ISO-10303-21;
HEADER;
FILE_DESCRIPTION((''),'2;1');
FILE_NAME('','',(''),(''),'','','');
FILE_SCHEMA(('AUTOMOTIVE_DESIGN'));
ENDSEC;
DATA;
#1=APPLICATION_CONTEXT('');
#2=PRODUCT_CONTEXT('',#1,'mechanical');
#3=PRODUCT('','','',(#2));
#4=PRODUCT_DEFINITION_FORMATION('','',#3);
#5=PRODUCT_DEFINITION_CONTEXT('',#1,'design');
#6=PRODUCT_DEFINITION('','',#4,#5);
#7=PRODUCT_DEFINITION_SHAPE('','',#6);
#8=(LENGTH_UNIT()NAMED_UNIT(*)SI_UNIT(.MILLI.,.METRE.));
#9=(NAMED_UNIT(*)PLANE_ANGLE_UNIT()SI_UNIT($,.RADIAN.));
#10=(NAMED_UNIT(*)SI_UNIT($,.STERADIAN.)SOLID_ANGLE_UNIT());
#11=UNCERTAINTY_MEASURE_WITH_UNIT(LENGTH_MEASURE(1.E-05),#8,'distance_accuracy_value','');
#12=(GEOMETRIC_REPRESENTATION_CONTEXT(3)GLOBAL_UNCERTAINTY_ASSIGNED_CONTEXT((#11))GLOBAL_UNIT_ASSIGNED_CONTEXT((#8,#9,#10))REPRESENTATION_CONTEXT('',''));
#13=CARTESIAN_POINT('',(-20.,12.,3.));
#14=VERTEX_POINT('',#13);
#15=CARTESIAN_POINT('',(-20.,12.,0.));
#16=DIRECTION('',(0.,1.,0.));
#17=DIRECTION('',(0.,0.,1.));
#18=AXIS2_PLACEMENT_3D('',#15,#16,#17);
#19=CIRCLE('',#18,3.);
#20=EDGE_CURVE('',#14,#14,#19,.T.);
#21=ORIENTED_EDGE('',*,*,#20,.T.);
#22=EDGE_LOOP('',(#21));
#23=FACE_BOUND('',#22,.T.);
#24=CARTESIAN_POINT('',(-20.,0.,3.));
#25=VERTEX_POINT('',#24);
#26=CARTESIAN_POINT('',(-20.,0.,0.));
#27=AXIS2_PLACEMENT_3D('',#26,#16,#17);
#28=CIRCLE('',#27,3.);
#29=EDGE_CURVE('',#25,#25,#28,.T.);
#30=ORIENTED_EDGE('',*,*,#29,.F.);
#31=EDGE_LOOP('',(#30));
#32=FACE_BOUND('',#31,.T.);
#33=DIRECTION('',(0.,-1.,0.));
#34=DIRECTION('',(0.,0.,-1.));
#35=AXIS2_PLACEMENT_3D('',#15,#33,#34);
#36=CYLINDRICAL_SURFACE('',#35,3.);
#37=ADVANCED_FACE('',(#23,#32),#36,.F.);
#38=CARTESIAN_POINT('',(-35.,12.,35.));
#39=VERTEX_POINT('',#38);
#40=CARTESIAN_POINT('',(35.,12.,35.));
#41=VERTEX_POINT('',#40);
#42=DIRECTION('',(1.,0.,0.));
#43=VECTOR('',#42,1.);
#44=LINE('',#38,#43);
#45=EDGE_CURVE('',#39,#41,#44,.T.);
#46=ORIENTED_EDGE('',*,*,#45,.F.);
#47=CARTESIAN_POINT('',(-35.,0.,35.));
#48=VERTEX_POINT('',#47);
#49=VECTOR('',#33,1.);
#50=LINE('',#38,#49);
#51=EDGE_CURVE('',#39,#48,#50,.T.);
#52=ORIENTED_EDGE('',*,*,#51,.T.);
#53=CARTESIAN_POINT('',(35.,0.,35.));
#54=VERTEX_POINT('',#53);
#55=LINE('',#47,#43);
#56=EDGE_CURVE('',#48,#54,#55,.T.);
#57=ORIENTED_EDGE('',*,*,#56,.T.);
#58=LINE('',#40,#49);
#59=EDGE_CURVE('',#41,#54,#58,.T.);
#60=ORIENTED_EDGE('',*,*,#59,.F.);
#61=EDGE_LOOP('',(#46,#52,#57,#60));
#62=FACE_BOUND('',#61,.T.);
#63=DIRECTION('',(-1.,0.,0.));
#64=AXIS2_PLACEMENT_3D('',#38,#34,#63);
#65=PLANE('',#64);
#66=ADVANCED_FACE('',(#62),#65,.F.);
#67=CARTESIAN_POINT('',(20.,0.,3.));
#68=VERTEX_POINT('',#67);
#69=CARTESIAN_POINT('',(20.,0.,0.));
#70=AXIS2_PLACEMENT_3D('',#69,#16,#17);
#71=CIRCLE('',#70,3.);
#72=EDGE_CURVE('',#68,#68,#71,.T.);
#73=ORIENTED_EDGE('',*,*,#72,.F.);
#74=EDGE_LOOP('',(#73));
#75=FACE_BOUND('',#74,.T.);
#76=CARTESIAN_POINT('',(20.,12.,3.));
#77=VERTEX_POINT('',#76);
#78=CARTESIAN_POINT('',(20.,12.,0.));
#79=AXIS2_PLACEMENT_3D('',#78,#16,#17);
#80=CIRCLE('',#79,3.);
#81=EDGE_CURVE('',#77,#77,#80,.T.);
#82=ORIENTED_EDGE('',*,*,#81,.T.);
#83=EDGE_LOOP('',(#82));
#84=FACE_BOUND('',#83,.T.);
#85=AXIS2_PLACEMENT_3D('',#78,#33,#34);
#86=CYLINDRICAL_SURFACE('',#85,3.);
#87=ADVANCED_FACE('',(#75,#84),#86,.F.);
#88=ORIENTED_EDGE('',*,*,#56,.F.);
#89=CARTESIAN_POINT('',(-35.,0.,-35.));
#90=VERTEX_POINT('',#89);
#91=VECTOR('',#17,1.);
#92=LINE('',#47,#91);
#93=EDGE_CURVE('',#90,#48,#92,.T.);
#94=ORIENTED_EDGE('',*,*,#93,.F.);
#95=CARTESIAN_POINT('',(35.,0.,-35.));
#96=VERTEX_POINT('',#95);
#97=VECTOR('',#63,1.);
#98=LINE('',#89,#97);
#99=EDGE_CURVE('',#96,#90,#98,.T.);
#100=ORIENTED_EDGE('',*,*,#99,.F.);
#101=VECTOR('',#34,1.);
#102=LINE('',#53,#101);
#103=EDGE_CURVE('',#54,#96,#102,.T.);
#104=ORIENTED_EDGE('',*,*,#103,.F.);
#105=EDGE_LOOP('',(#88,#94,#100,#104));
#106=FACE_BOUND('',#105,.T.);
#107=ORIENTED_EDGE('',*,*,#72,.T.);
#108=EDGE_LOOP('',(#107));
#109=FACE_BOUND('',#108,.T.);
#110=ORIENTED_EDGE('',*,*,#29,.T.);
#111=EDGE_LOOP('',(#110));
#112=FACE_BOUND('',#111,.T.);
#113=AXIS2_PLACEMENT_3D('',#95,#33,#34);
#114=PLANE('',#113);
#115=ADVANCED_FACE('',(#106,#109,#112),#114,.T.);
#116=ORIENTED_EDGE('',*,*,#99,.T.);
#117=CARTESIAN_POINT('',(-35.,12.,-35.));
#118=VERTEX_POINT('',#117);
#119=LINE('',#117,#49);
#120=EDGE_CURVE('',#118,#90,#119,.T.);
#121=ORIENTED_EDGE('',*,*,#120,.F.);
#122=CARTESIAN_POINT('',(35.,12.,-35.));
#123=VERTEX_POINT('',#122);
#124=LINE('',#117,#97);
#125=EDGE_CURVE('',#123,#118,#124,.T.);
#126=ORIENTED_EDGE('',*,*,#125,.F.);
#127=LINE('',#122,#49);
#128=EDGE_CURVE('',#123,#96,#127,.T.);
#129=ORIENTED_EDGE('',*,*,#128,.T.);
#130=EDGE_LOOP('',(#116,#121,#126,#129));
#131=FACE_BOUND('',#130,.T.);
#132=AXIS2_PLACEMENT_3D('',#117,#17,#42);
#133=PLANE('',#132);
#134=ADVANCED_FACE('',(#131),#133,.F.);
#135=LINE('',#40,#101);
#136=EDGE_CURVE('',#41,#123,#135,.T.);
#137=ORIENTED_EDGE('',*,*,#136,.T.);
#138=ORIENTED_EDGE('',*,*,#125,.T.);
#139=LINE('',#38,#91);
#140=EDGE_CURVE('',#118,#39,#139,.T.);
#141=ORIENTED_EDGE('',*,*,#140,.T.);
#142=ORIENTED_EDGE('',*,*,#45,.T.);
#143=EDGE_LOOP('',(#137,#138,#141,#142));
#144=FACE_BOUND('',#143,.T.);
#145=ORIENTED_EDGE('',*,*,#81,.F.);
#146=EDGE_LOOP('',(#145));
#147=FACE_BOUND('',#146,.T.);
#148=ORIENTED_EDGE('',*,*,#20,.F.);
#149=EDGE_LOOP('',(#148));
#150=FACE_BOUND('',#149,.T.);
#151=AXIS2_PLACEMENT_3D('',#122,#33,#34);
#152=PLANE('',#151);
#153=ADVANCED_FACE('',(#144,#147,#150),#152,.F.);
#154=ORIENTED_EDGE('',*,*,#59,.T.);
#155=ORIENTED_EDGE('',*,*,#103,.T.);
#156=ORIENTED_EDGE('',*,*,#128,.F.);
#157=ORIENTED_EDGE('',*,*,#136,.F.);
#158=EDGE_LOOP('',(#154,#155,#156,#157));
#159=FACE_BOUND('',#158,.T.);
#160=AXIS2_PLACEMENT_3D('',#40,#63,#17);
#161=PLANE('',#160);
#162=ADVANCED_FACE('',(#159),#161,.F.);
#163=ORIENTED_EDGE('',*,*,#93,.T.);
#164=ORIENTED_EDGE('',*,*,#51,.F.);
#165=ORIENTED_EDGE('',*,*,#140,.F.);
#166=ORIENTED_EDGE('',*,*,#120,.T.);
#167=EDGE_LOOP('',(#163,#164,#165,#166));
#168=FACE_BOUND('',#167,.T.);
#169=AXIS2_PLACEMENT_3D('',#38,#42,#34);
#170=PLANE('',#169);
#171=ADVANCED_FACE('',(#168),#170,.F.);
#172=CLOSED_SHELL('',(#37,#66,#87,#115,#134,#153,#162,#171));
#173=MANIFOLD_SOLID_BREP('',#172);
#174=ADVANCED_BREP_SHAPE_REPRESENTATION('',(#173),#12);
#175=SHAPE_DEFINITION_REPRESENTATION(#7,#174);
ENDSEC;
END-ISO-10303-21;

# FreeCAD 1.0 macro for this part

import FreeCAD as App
import Part
import Sketcher


def add_polygon(sketch, points):
    """Adds a closed chain of lines whose ends are joined by coincident constraints."""
    first, n = sketch.GeometryCount, len(points)
    for a, b in zip(points, points[1:] + points[:1]):
        sketch.addGeometry(Part.LineSegment(App.Vector(*a, 0), App.Vector(*b, 0)), False)
    for i in range(n):
        sketch.addConstraint(Sketcher.Constraint("Coincident", first + i, 2, first + (i + 1) % n, 1))

doc = App.newDocument("Part")
params = doc.addObject("Spreadsheet::Sheet", "Params")
for row, (alias, value) in enumerate([
    ("sketch1_diameter", "6 mm"),
    ("sketch1_width", "70 mm"),
    ("pad1_length", "12 mm"),
], start=1):
    params.set(f"A{row}", alias)
    params.set(f"B{row}", "=" + value)
    params.setAlias(f"B{row}", alias)

body = doc.addObject("PartDesign::Body", "Body")

# Sketch on XZ plane
sketch1 = body.newObject("Sketcher::SketchObject", "Sketch")
sketch1.AttachmentSupport = (doc.getObject("XZ_Plane"), [""])
sketch1.MapMode = "FlatFace"
add_polygon(sketch1, [(-35, -35), (-35, 35), (35, 35), (35, -35)])  # lines 0-3
sketch1.addGeometry(Part.Circle(App.Vector(-20, 0, 0), App.Vector(0, 0, 1), 3), False)  # 4
sketch1.addGeometry(Part.Circle(App.Vector(20, 0, 0), App.Vector(0, 0, 1), 3), False)  # 5
sketch1.addConstraint([
    Sketcher.Constraint("Vertical", 0),
    Sketcher.Constraint("Horizontal", 1),
    Sketcher.Constraint("Vertical", 2),
    Sketcher.Constraint("Horizontal", 3),
    Sketcher.Constraint("Equal", 4, 5),
    Sketcher.Constraint("Symmetric", 4, 3, 5, 3, -1, 1),
    Sketcher.Constraint("Symmetric", 0, 2, 2, 2, -1, 1),
    Sketcher.Constraint("PointOnObject", 4, 3, -1),
    Sketcher.Constraint("Equal", 3, 0),
    Sketcher.Constraint("Diameter", 4, 6.0),
    Sketcher.Constraint("DistanceX", 1, 1, 1, 2, 70.0),
    Sketcher.Constraint("DistanceX", 4, 3, -1, 1, 20.0),
])
sketch1.setExpression("Constraints[13]", "Params.sketch1_diameter")
sketch1.setExpression("Constraints[14]", "Params.sketch1_width")
pad1 = body.newObject("PartDesign::Pad", "Pad")
pad1.Profile = sketch1
pad1.setExpression("Length", "Params.pad1_length")
pad1.Reversed = True

doc.recompute()
